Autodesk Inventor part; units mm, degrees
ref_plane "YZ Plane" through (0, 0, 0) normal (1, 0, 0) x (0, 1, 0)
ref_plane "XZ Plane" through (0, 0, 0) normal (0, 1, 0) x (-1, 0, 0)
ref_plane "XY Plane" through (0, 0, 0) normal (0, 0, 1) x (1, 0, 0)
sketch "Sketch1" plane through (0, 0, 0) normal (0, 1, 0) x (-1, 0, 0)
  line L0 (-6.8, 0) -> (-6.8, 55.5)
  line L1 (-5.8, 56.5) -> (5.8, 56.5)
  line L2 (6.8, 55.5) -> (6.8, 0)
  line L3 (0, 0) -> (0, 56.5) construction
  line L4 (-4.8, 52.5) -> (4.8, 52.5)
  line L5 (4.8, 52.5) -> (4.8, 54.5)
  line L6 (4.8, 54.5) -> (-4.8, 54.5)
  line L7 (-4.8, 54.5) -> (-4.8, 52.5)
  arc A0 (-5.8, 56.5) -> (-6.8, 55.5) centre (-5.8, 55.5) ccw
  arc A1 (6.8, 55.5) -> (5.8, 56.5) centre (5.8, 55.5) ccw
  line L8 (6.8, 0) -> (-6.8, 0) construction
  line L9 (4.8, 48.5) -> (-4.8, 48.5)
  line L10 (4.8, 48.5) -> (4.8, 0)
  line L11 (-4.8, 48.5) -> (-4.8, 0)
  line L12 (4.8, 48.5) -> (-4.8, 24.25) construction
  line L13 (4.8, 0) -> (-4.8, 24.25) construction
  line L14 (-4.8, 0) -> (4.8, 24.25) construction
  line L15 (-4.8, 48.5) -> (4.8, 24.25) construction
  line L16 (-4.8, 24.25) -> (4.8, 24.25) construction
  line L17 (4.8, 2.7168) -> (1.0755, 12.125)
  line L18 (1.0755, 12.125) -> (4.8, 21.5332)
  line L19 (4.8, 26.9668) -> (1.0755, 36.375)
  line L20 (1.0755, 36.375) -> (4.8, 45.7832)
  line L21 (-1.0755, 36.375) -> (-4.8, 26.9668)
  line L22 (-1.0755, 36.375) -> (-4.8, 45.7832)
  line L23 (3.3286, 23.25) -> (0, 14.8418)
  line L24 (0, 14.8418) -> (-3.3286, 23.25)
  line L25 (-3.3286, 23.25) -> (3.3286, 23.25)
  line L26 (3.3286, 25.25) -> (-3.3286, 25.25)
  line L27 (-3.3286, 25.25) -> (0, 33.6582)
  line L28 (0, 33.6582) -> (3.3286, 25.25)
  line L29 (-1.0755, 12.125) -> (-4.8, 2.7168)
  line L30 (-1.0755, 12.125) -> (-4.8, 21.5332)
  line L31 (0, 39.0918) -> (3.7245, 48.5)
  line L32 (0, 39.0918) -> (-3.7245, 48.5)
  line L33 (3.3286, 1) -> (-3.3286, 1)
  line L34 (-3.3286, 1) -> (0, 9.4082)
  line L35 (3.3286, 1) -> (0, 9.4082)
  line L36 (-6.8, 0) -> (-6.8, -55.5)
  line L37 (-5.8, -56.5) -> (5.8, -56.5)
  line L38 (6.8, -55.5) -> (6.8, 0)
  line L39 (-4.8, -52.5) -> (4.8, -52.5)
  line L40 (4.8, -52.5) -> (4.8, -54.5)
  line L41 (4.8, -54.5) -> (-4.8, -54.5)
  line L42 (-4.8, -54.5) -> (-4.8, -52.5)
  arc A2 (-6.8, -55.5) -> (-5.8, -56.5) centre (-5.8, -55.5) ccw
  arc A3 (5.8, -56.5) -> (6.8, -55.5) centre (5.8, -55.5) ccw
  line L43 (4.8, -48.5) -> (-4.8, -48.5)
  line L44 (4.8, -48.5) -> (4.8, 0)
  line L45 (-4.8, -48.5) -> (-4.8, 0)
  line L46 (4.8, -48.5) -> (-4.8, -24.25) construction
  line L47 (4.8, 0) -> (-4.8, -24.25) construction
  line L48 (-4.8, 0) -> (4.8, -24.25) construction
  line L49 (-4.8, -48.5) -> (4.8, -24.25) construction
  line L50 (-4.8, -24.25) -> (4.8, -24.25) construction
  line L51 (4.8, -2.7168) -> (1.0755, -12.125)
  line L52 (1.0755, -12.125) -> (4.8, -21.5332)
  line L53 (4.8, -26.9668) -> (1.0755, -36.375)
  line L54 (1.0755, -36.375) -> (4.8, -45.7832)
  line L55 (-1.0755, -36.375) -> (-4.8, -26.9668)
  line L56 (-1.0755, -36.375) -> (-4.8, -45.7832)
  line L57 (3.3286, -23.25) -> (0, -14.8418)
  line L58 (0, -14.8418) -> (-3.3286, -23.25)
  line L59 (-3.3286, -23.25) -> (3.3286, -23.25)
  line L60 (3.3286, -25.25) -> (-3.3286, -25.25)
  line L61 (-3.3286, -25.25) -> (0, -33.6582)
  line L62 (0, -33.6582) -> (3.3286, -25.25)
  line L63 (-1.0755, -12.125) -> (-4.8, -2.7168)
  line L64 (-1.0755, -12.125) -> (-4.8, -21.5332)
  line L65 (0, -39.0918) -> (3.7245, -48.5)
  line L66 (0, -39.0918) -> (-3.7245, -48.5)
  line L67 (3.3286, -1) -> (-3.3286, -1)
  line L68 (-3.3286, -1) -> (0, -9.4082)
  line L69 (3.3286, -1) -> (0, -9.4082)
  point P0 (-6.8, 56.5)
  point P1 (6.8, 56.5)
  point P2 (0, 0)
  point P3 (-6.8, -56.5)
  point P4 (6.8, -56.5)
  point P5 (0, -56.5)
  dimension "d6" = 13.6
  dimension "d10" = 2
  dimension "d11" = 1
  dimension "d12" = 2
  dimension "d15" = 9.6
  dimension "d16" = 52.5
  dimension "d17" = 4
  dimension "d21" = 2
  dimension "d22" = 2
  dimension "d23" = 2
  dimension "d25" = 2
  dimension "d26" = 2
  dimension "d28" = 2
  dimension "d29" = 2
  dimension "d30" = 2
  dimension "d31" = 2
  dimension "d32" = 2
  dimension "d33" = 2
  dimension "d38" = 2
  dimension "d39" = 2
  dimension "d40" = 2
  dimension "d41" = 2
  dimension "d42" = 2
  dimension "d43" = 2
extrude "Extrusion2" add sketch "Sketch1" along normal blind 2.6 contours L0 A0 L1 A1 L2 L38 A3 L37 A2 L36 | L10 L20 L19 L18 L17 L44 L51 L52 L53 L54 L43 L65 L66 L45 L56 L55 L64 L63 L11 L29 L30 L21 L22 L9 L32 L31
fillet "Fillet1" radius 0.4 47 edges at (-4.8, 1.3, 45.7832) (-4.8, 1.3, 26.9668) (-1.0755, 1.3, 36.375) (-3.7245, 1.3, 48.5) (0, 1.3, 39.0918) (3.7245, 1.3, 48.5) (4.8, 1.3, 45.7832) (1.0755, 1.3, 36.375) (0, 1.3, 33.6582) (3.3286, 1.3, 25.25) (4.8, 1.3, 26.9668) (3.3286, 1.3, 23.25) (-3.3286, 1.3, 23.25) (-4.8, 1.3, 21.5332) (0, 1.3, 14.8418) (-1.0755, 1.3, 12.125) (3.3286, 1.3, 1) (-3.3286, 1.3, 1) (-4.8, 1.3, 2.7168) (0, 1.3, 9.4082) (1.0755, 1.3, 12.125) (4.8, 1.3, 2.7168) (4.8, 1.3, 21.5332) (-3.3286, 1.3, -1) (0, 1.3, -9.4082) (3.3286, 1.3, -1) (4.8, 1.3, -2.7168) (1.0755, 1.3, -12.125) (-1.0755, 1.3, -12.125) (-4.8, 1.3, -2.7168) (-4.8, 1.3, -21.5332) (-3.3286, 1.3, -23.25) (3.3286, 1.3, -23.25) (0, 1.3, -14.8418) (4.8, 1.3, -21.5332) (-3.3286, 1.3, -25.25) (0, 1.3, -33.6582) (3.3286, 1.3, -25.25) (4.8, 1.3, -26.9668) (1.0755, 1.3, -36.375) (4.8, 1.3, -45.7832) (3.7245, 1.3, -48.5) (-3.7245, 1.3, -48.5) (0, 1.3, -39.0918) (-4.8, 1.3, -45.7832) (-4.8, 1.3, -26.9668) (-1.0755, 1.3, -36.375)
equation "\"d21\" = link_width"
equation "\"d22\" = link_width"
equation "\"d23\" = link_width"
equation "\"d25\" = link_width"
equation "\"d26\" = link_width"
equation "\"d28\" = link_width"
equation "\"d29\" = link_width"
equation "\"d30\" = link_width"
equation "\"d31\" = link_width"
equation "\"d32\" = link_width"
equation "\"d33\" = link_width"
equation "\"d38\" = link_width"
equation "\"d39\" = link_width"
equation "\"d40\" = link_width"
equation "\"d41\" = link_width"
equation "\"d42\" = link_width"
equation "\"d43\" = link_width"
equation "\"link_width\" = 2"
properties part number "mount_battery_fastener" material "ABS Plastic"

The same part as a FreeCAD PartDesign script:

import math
import FreeCAD as App
import Part
import Sketcher
from FreeCAD import Vector


def edges_at(feature, points):
    """Names of the edges that pass closest to the given points."""
    edges = feature.Shape.Edges
    near = lambda p: min(range(len(edges)), key=lambda i: edges[i].distToShape(Part.Vertex(*p))[0])
    return sorted({f"Edge{near(p) + 1}" for p in points})


def add_polygon(sketch, points):
    """Adds a closed chain of lines whose ends are joined by coincident constraints."""
    first, n = sketch.GeometryCount, len(points)
    for a, b in zip(points, points[1:] + points[:1]):
        sketch.addGeometry(Part.LineSegment(App.Vector(*a, 0), App.Vector(*b, 0)), False)
    for i in range(n):
        sketch.addConstraint(Sketcher.Constraint("Coincident", first + i, 2, first + (i + 1) % n, 1))

doc = App.newDocument("Part")
body = doc.addObject("PartDesign::Body", "Body")

# Sketch on XZ plane
sketch1 = doc.addObject("Sketcher::SketchObject", "Sketch")
body.addObject(sketch1)
sketch1.AttachmentSupport = (doc.XZ_Plane, [""])
sketch1.MapMode = "FlatFace"
sketch1.addGeometry(Part.LineSegment(Vector(6.8, 55.5, 0), Vector(6.8, -55.5, 0)), False)  # 0
sketch1.addGeometry(Part.ArcOfCircle(Part.Circle(Vector(5.8, -55.5, 0), Vector(0, 0, 1), 1), math.radians(-90), math.radians(0)), False)  # 1
sketch1.addGeometry(Part.LineSegment(Vector(5.8, -56.5, 0), Vector(-5.8, -56.5, 0)), False)  # 2
sketch1.addGeometry(Part.ArcOfCircle(Part.Circle(Vector(-5.8, -55.5, 0), Vector(0, 0, 1), 1), math.radians(180), math.radians(270)), False)  # 3
sketch1.addGeometry(Part.LineSegment(Vector(-6.8, -55.5, 0), Vector(-6.8, 55.5, 0)), False)  # 4
sketch1.addGeometry(Part.ArcOfCircle(Part.Circle(Vector(-5.8, 55.5, 0), Vector(0, 0, 1), 1), math.radians(90), math.radians(180)), False)  # 5
sketch1.addGeometry(Part.LineSegment(Vector(-5.8, 56.5, 0), Vector(5.8, 56.5, 0)), False)  # 6
sketch1.addGeometry(Part.ArcOfCircle(Part.Circle(Vector(5.8, 55.5, 0), Vector(0, 0, 1), 1), math.radians(0), math.radians(90)), False)  # 7
add_polygon(sketch1, [(4.8, -54.5), (4.8, -52.5), (-4.8, -52.5), (-4.8, -54.5)])  # lines 8-11
add_polygon(sketch1, [(3.7, 48.5), (-3.7, 48.5), (0, 39.1)])  # lines 12-14
add_polygon(sketch1, [(4.8, 27), (4.8, 45.8), (1.1, 36.4)])  # lines 15-17
add_polygon(sketch1, [(4.8, 2.7), (4.8, 21.5), (1.1, 12.1)])  # lines 18-20
add_polygon(sketch1, [(4.8, -21.5), (4.8, -2.7), (1.1, -12.1)])  # lines 21-23
add_polygon(sketch1, [(4.8, -45.8), (4.8, -27), (1.1, -36.4)])  # lines 24-26
add_polygon(sketch1, [(-3.7, -48.5), (3.7, -48.5), (0, -39.1)])  # lines 27-29
add_polygon(sketch1, [(-4.8, -27), (-4.8, -45.8), (-1.1, -36.4)])  # lines 30-32
add_polygon(sketch1, [(-4.8, -2.7), (-4.8, -21.5), (-1.1, -12.1)])  # lines 33-35
add_polygon(sketch1, [(-4.8, 21.5), (-4.8, 2.7), (-1.1, 12.1)])  # lines 36-38
add_polygon(sketch1, [(-4.8, 45.8), (-4.8, 27), (-1.1, 36.4)])  # lines 39-41
add_polygon(sketch1, [(-4.8, 52.5), (4.8, 52.5), (4.8, 54.5), (-4.8, 54.5)])  # lines 42-45
add_polygon(sketch1, [(-3.3, -25.2), (0, -33.7), (3.3, -25.2)])  # lines 46-48
add_polygon(sketch1, [(0, -14.8), (-3.3, -23.2), (3.3, -23.2)])  # lines 49-51
add_polygon(sketch1, [(3.3, -1), (-3.3, -1), (0, -9.4)])  # lines 52-54
add_polygon(sketch1, [(0, 9.4), (-3.3, 1), (3.3, 1)])  # lines 55-57
add_polygon(sketch1, [(3.3, 23.2), (-3.3, 23.2), (0, 14.8)])  # lines 58-60
add_polygon(sketch1, [(0, 33.7), (-3.3, 25.2), (3.3, 25.2)])  # lines 61-63
sketch1.addConstraint(Sketcher.Constraint("Tangent", 0, 2, 1, 2))
sketch1.addConstraint(Sketcher.Constraint("Tangent", 1, 1, 2, 1))
sketch1.addConstraint(Sketcher.Constraint("Tangent", 2, 2, 3, 2))
sketch1.addConstraint(Sketcher.Constraint("Tangent", 3, 1, 4, 1))
sketch1.addConstraint(Sketcher.Constraint("Tangent", 4, 2, 5, 2))
sketch1.addConstraint(Sketcher.Constraint("Tangent", 5, 1, 6, 1))
sketch1.addConstraint(Sketcher.Constraint("Tangent", 6, 2, 7, 2))
sketch1.addConstraint(Sketcher.Constraint("Tangent", 7, 1, 0, 1))
sketch1.addConstraint(Sketcher.Constraint("Vertical", 0))
sketch1.addConstraint(Sketcher.Constraint("Horizontal", 2))
sketch1.addConstraint(Sketcher.Constraint("Vertical", 4))
sketch1.addConstraint(Sketcher.Constraint("Horizontal", 6))
sketch1.addConstraint(Sketcher.Constraint("Vertical", 8))
sketch1.addConstraint(Sketcher.Constraint("Horizontal", 9))
sketch1.addConstraint(Sketcher.Constraint("Vertical", 10))
sketch1.addConstraint(Sketcher.Constraint("Horizontal", 11))
sketch1.addConstraint(Sketcher.Constraint("Horizontal", 12))
sketch1.addConstraint(Sketcher.Constraint("Vertical", 15))
sketch1.addConstraint(Sketcher.Constraint("Vertical", 18))
sketch1.addConstraint(Sketcher.Constraint("Vertical", 21))
sketch1.addConstraint(Sketcher.Constraint("Vertical", 24))
sketch1.addConstraint(Sketcher.Constraint("Horizontal", 27))
sketch1.addConstraint(Sketcher.Constraint("Vertical", 30))
sketch1.addConstraint(Sketcher.Constraint("Vertical", 33))
sketch1.addConstraint(Sketcher.Constraint("Vertical", 36))
sketch1.addConstraint(Sketcher.Constraint("Vertical", 39))
sketch1.addConstraint(Sketcher.Constraint("Horizontal", 42))
sketch1.addConstraint(Sketcher.Constraint("Vertical", 43))
sketch1.addConstraint(Sketcher.Constraint("Horizontal", 44))
sketch1.addConstraint(Sketcher.Constraint("Vertical", 45))
sketch1.addConstraint(Sketcher.Constraint("Horizontal", 48))
sketch1.addConstraint(Sketcher.Constraint("Horizontal", 50))
sketch1.addConstraint(Sketcher.Constraint("Horizontal", 52))
sketch1.addConstraint(Sketcher.Constraint("Horizontal", 56))
sketch1.addConstraint(Sketcher.Constraint("Horizontal", 58))
sketch1.addConstraint(Sketcher.Constraint("Horizontal", 62))
sketch1.addConstraint(Sketcher.Constraint("Equal", 1, 3))
sketch1.addConstraint(Sketcher.Constraint("Equal", 3, 5))
sketch1.addConstraint(Sketcher.Constraint("Equal", 5, 7))
sketch1.addConstraint(Sketcher.Constraint("Symmetric", 1, 3, 5, 3, -1, 1))
sketch1.addConstraint(Sketcher.Constraint("Symmetric", 12, 2, 27, 2, -1, 1))
sketch1.addConstraint(Sketcher.Constraint("Symmetric", 13, 2, 28, 2, -1, 1))
sketch1.addConstraint(Sketcher.Constraint("Symmetric", 15, 2, 30, 2, -1, 1))
sketch1.addConstraint(Sketcher.Constraint("Symmetric", 16, 2, 31, 2, -1, 1))
sketch1.addConstraint(Sketcher.Constraint("Symmetric", 18, 2, 33, 2, -1, 1))
sketch1.addConstraint(Sketcher.Constraint("Symmetric", 19, 2, 34, 2, -1, 1))
sketch1.addConstraint(Sketcher.Constraint("Symmetric", 21, 2, 36, 2, -1, 1))
sketch1.addConstraint(Sketcher.Constraint("Symmetric", 22, 2, 37, 2, -1, 1))
sketch1.addConstraint(Sketcher.Constraint("Symmetric", 24, 2, 39, 2, -1, 1))
sketch1.addConstraint(Sketcher.Constraint("Symmetric", 25, 2, 40, 2, -1, 1))
sketch1.addConstraint(Sketcher.Constraint("Symmetric", 9, 2, 42, 2, -1, 1))
sketch1.addConstraint(Sketcher.Constraint("Symmetric", 11, 2, 44, 2, -1, 1))
sketch1.addConstraint(Sketcher.Constraint("Symmetric", 54, 2, 55, 2, -1, 1))
sketch1.addConstraint(Sketcher.Constraint("Symmetric", 53, 2, 57, 2, -1, 1))
sketch1.addConstraint(Sketcher.Constraint("Symmetric", 50, 2, 58, 2, -1, 1))
sketch1.addConstraint(Sketcher.Constraint("Symmetric", 51, 2, 59, 2, -1, 1))
sketch1.addConstraint(Sketcher.Constraint("Symmetric", 47, 2, 61, 2, -1, 1))
sketch1.addConstraint(Sketcher.Constraint("Symmetric", 46, 2, 63, 2, -1, 1))
sketch1.addConstraint(Sketcher.Constraint("Symmetric", 26, 2, 30, 2, -2))
sketch1.addConstraint(Sketcher.Constraint("Symmetric", 25, 2, 31, 2, -2))
sketch1.addConstraint(Sketcher.Constraint("Symmetric", 23, 2, 33, 2, -2))
sketch1.addConstraint(Sketcher.Constraint("Symmetric", 22, 2, 34, 2, -2))
sketch1.addConstraint(Sketcher.Constraint("PointOnObject", 13, 2, -2))
sketch1.addConstraint(Sketcher.Constraint("PointOnObject", 46, 2, -2))
sketch1.addConstraint(Sketcher.Constraint("PointOnObject", 51, 2, -2))
sketch1.addConstraint(Sketcher.Constraint("PointOnObject", 53, 2, -2))
sketch1.addConstraint(Sketcher.Constraint("Parallel", 14, 16))
sketch1.addConstraint(Sketcher.Constraint("Parallel", 13, 17))
sketch1.addConstraint(Sketcher.Constraint("Parallel", 16, 19))
sketch1.addConstraint(Sketcher.Constraint("Parallel", 17, 20))
sketch1.addConstraint(Sketcher.Constraint("Parallel", 19, 22))
sketch1.addConstraint(Sketcher.Constraint("Parallel", 20, 23))
sketch1.addConstraint(Sketcher.Constraint("Parallel", 22, 25))
sketch1.addConstraint(Sketcher.Constraint("Parallel", 25, 29))
sketch1.addConstraint(Sketcher.Constraint("Parallel", 28, 32))
sketch1.addConstraint(Sketcher.Constraint("Parallel", 32, 35))
sketch1.addConstraint(Sketcher.Constraint("Parallel", 35, 38))
sketch1.addConstraint(Sketcher.Constraint("Parallel", 38, 41))
sketch1.addConstraint(Sketcher.Constraint("Parallel", 41, 46))
sketch1.addConstraint(Sketcher.Constraint("Parallel", 40, 47))
sketch1.addConstraint(Sketcher.Constraint("Parallel", 47, 49))
sketch1.addConstraint(Sketcher.Constraint("Parallel", 46, 51))
sketch1.addConstraint(Sketcher.Constraint("Parallel", 51, 53))
sketch1.addConstraint(Sketcher.Constraint("Parallel", 49, 54))
sketch1.addConstraint(Sketcher.Constraint("Parallel", 53, 57))
sketch1.addConstraint(Sketcher.Constraint("Parallel", 55, 60))
sketch1.addConstraint(Sketcher.Constraint("Parallel", 59, 63))
sketch1.addConstraint(Sketcher.Constraint("Vertical", 11, 2, 15, 2))
sketch1.addConstraint(Sketcher.Constraint("Vertical", 17, 2, 18, 2))
sketch1.addConstraint(Sketcher.Constraint("Vertical", 16, 2, 19, 2))
sketch1.addConstraint(Sketcher.Constraint("Vertical", 10, 2, 30, 2))
sketch1.addConstraint(Sketcher.Constraint("Vertical", 48, 2, 49, 2))
sketch1.addConstraint(Sketcher.Constraint("Vertical", 49, 2, 52, 2))
sketch1.addConstraint(Sketcher.Constraint("Equal", 14, 16))
sketch1.addConstraint(Sketcher.Constraint("Radius", 1, 1.0))
sketch1.addConstraint(Sketcher.Constraint("DistanceY", 8, 1, 8, 2, 2.0))
sketch1.addConstraint(Sketcher.Constraint("DistanceX", 9, 2, 9, 1, 9.6))
sketch1.addConstraint(Sketcher.Constraint("DistanceY", 52, 2, -1, 1, 1.0))
sketch1.addConstraint(Sketcher.Constraint("DistanceY", 8, 2, -1, 1, 52.5))
sketch1.addConstraint(Sketcher.Constraint("DistanceY", 0, 2, 0, 1, 111.0))
sketch1.addConstraint(Sketcher.Constraint("DistanceX", 2, 2, 2, 1, 11.6))
sketch1.addConstraint(Sketcher.Constraint("DistanceY", -1, 1, 12, 2, 48.5))
sketch1.addConstraint(Sketcher.Constraint("DistanceX", 12, 2, 12, 1, 7.449))
sketch1.addConstraint(Sketcher.Constraint("DistanceY", 47, 2, -1, 1, 25.25))
sketch1.addConstraint(Sketcher.Constraint("DistanceY", 49, 2, -1, 1, 23.25))
sketch1.addConstraint(Sketcher.Constraint("Distance", 46, 9.043))
sketch1.addConstraint(Sketcher.Constraint("DistanceX", 48, 2, 48, 1, 6.6572))
sketch1.addConstraint(Sketcher.Constraint("DistanceY", -1, 1, 16, 2, 36.375))
sketch1.addConstraint(Sketcher.Constraint("DistanceY", -1, 1, 19, 2, 12.125))
pad1 = doc.addObject("PartDesign::Pad", "Pad")
body.addObject(pad1)
pad1.Profile = sketch1
pad1.Length = 2.6
pad1.Reversed = True
doc.recompute()

fillet = doc.addObject("PartDesign::Fillet", "Fillet")
body.addObject(fillet)
fillet.Base = (pad1, edges_at(pad1, [
    (-4.8, 1.3, 45.783),
    (-4.8, 1.3, 26.967),
    (-1.075, 1.3, 36.375),
    (-3.724, 1.3, 48.5),
    (0, 1.3, 39.092),
    (3.724, 1.3, 48.5),
    (4.8, 1.3, 45.783),
    (1.075, 1.3, 36.375),
    (0, 1.3, 33.658),
    (3.329, 1.3, 25.25),
    (4.8, 1.3, 26.967),
    (3.329, 1.3, 23.25),
    (-3.329, 1.3, 23.25),
    (-4.8, 1.3, 21.533),
    (0, 1.3, 14.842),
    (-1.075, 1.3, 12.125),
    (3.329, 1.3, 1),
    (-3.329, 1.3, 1),
    (-4.8, 1.3, 2.717),
    (0, 1.3, 9.408),
    (1.075, 1.3, 12.125),
    (4.8, 1.3, 2.717),
    (4.8, 1.3, 21.533),
    (-3.329, 1.3, -1),
    (0, 1.3, -9.408),
    (3.329, 1.3, -1),
    (4.8, 1.3, -2.717),
    (1.075, 1.3, -12.125),
    (-1.075, 1.3, -12.125),
    (-4.8, 1.3, -2.717),
    (-4.8, 1.3, -21.533),
    (-3.329, 1.3, -23.25),
    (3.329, 1.3, -23.25),
    (0, 1.3, -14.842),
    (4.8, 1.3, -21.533),
    (-3.329, 1.3, -25.25),
    (0, 1.3, -33.658),
    (3.329, 1.3, -25.25),
    (4.8, 1.3, -26.967),
    (1.075, 1.3, -36.375),
    (4.8, 1.3, -45.783),
    (3.724, 1.3, -48.5),
    (-3.724, 1.3, -48.5),
    (0, 1.3, -39.092),
    (-4.8, 1.3, -45.783),
    (-4.8, 1.3, -26.967),
    (-1.075, 1.3, -36.375),
]))
fillet.Radius = 0.4

doc.recompute()
